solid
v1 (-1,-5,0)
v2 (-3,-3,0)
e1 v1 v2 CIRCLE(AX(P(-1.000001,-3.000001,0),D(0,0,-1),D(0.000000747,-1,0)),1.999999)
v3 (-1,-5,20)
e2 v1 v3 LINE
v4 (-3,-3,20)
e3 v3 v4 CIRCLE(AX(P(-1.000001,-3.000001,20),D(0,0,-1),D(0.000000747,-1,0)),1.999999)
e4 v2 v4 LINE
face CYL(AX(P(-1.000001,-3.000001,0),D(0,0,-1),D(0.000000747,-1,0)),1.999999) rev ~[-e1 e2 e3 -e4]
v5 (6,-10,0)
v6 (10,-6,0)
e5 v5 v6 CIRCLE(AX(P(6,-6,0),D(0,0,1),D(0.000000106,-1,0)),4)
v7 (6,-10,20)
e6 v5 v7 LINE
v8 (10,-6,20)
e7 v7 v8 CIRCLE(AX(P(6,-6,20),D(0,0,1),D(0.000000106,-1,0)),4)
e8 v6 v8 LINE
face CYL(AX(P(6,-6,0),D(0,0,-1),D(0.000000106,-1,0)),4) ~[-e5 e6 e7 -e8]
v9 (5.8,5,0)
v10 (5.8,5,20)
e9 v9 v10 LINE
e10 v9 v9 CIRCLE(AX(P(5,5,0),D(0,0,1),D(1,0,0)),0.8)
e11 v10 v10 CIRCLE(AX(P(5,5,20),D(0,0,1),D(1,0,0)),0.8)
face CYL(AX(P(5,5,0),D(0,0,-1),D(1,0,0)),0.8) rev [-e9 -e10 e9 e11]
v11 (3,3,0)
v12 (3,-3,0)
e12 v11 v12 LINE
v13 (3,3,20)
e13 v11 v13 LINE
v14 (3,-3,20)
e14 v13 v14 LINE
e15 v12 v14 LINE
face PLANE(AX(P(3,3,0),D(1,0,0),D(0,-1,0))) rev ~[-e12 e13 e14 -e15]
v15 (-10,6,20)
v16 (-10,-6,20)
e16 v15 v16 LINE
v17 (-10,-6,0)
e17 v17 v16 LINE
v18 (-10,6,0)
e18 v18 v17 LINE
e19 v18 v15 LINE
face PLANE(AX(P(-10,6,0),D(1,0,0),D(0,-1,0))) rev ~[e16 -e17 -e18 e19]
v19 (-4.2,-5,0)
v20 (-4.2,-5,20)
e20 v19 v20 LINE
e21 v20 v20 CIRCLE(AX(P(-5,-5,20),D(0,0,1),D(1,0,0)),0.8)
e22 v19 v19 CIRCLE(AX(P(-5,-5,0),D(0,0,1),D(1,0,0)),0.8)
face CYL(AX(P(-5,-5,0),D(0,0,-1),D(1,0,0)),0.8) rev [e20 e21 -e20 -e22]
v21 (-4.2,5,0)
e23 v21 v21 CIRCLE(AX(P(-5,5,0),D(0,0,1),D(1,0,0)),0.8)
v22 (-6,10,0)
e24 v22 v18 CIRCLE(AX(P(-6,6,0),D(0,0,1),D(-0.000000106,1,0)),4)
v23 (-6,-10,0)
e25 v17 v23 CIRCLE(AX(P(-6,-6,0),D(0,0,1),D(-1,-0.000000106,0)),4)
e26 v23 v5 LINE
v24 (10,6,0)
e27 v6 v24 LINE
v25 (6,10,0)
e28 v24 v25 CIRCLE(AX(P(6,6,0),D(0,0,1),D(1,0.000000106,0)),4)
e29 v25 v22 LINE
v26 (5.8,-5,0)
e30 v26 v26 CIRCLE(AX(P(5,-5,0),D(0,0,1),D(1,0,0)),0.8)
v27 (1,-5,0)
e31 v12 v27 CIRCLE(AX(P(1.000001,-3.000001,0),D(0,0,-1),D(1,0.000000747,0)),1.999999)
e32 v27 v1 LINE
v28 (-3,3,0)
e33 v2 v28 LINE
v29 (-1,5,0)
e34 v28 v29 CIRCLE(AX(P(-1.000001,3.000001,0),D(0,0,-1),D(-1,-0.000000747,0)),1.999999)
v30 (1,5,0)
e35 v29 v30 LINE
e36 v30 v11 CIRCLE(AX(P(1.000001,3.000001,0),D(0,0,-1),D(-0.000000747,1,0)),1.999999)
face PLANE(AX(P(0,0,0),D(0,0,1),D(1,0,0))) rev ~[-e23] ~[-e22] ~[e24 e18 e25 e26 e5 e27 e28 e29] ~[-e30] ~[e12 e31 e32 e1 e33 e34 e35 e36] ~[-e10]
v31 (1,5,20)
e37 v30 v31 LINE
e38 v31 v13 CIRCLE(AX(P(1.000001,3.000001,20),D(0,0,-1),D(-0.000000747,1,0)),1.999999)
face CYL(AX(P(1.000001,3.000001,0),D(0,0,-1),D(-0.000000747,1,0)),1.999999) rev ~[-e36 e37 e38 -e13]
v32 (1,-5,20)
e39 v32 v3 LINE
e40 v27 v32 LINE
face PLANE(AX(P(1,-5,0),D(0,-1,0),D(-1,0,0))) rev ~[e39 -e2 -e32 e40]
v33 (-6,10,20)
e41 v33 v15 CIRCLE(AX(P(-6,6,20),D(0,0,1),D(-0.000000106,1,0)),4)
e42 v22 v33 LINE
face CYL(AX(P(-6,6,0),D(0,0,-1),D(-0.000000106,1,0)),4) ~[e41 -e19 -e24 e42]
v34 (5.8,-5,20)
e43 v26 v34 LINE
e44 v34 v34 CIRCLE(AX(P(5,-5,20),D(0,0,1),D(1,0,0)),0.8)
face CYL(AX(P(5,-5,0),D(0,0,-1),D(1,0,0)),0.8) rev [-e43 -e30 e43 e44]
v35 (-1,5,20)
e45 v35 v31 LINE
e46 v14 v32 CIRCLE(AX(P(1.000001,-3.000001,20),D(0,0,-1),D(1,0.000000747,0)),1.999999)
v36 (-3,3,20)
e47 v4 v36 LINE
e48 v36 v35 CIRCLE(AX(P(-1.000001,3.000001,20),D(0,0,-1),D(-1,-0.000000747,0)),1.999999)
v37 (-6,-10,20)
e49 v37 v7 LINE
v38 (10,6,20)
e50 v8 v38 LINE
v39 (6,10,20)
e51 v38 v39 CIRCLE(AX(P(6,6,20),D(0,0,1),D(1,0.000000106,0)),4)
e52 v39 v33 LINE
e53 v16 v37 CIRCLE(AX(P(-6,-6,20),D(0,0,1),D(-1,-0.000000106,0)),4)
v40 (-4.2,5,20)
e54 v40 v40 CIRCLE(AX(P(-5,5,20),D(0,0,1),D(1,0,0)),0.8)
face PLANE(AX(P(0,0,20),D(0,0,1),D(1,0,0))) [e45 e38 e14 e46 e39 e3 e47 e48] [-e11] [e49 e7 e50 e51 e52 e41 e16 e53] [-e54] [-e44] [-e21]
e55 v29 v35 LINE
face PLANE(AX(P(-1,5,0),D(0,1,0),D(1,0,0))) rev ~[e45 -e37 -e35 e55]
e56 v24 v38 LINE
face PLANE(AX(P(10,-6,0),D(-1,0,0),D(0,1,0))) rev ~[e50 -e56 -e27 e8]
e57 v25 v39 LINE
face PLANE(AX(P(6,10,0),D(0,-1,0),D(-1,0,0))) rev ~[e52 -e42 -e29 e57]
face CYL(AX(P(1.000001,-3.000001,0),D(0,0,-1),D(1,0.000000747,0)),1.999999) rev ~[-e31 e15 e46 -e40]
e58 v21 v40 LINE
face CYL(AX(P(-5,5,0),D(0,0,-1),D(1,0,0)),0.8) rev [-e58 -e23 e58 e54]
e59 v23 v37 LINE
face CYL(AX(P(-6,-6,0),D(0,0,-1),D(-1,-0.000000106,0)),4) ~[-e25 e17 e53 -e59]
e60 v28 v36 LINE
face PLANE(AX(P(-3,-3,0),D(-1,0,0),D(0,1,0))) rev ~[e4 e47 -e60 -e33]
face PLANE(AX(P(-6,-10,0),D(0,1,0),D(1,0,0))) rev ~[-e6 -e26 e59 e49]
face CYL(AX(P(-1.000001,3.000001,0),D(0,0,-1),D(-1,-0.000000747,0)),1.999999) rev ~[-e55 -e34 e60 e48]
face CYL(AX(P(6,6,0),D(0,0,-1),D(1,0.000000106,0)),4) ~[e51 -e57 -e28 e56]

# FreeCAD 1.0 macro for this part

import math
import FreeCAD as App
import Part
import Sketcher

V = App.Vector

doc = App.newDocument("Part")
params = doc.addObject("Spreadsheet::Sheet", "Params")
for row, (alias, value) in enumerate([
    ("sketch1_radius", "4 mm"),
    ("sketch1_radius2", "1.999999 mm"),
    ("sketch1_diameter", "1.6 mm"),
    ("sketch1_width", "12 mm"),
    ("sketch1_width2", "2 mm"),
    ("pad1_length", "20 mm"),
], start=1):
    params.set(f"A{row}", alias)
    params.set(f"B{row}", "=" + value)
    params.setAlias(f"B{row}", alias)

body = doc.addObject("PartDesign::Body", "Body")

sketch1 = doc.addObject("Sketcher::SketchObject", "Sketch")
body.addObject(sketch1)
sketch1.AttachmentSupport = (doc.XY_Plane, [""])
sketch1.MapMode = "FlatFace"
sketch1.addGeometry(Part.LineSegment(V(6, 10, 0), V(-6, 10, 0)), False)
sketch1.addGeometry(Part.ArcOfCircle(Part.Circle(V(-6, 6, 0), V(0, 0, 1), 4), math.radians(90.000006), math.radians(179.999994)), False)
sketch1.addGeometry(Part.LineSegment(V(-10, 6, 0), V(-10, -6, 0)), False)
sketch1.addGeometry(Part.ArcOfCircle(Part.Circle(V(-6, -6, 0), V(0, 0, 1), 4), math.radians(-179.999994), math.radians(-90.000006)), False)
sketch1.addGeometry(Part.LineSegment(V(-6, -10, 0), V(6, -10, 0)), False)
sketch1.addGeometry(Part.ArcOfCircle(Part.Circle(V(6, -6, 0), V(0, 0, 1), 4), math.radians(-89.999994), math.radians(-0.000006)), False)
sketch1.addGeometry(Part.LineSegment(V(10, -6, 0), V(10, 6, 0)), False)
sketch1.addGeometry(Part.ArcOfCircle(Part.Circle(V(6, 6, 0), V(0, 0, 1), 4), math.radians(0.000006), math.radians(89.999994)), False)
sketch1.addGeometry(Part.Circle(V(-5, -5, 0), V(0, 0, 1), 0.8), False)
sketch1.addGeometry(Part.Circle(V(5, -5, 0), V(0, 0, 1), 0.8), False)
sketch1.addGeometry(Part.LineSegment(V(-3, -3, 0), V(-3, 3, 0)), False)
sketch1.addGeometry(Part.ArcOfCircle(Part.Circle(V(-1.000001, 3.000001, 0), V(0, 0, 1), 1.999999), math.radians(89.999957), math.radians(180.000043)), False)
sketch1.addGeometry(Part.LineSegment(V(-1, 5, 0), V(1, 5, 0)), False)
sketch1.addGeometry(Part.ArcOfCircle(Part.Circle(V(1.000001, 3.000001, 0), V(0, 0, 1), 1.999999), math.radians(-0.000043), math.radians(90.000043)), False)
sketch1.addGeometry(Part.LineSegment(V(3, 3, 0), V(3, -3, 0)), False)
sketch1.addGeometry(Part.ArcOfCircle(Part.Circle(V(1.000001, -3.000001, 0), V(0, 0, 1), 1.999999), math.radians(-90.000043), math.radians(0.000043)), False)
sketch1.addGeometry(Part.LineSegment(V(1, -5, 0), V(-1, -5, 0)), False)
sketch1.addGeometry(Part.ArcOfCircle(Part.Circle(V(-1.000001, -3.000001, 0), V(0, 0, 1), 1.999999), math.radians(179.999957), math.radians(270.000043)), False)
sketch1.addGeometry(Part.Circle(V(-5, 5, 0), V(0, 0, 1), 0.8), False)
sketch1.addGeometry(Part.Circle(V(5, 5, 0), V(0, 0, 1), 0.8), False)
sketch1.addConstraint(Sketcher.Constraint("Tangent", 0, 2, 1, 1))
sketch1.addConstraint(Sketcher.Constraint("Tangent", 1, 2, 2, 1))
sketch1.addConstraint(Sketcher.Constraint("Tangent", 2, 2, 3, 1))
sketch1.addConstraint(Sketcher.Constraint("Tangent", 3, 2, 4, 1))
sketch1.addConstraint(Sketcher.Constraint("Tangent", 4, 2, 5, 1))
sketch1.addConstraint(Sketcher.Constraint("Tangent", 5, 2, 6, 1))
sketch1.addConstraint(Sketcher.Constraint("Tangent", 6, 2, 7, 1))
sketch1.addConstraint(Sketcher.Constraint("Tangent", 7, 2, 0, 1))
sketch1.addConstraint(Sketcher.Constraint("Tangent", 10, 2, 11, 2))
sketch1.addConstraint(Sketcher.Constraint("Tangent", 11, 1, 12, 1))
sketch1.addConstraint(Sketcher.Constraint("Tangent", 12, 2, 13, 2))
sketch1.addConstraint(Sketcher.Constraint("Tangent", 13, 1, 14, 1))
sketch1.addConstraint(Sketcher.Constraint("Tangent", 14, 2, 15, 2))
sketch1.addConstraint(Sketcher.Constraint("Tangent", 15, 1, 16, 1))
sketch1.addConstraint(Sketcher.Constraint("Tangent", 16, 2, 17, 2))
sketch1.addConstraint(Sketcher.Constraint("Tangent", 17, 1, 10, 1))
sketch1.addConstraint(Sketcher.Constraint("Horizontal", 0))
sketch1.addConstraint(Sketcher.Constraint("Vertical", 2))
sketch1.addConstraint(Sketcher.Constraint("Horizontal", 4))
sketch1.addConstraint(Sketcher.Constraint("Vertical", 6))
sketch1.addConstraint(Sketcher.Constraint("Vertical", 10))
sketch1.addConstraint(Sketcher.Constraint("Horizontal", 12))
sketch1.addConstraint(Sketcher.Constraint("Vertical", 14))
sketch1.addConstraint(Sketcher.Constraint("Horizontal", 16))
sketch1.addConstraint(Sketcher.Constraint("Equal", 1, 3))
sketch1.addConstraint(Sketcher.Constraint("Equal", 3, 5))
sketch1.addConstraint(Sketcher.Constraint("Equal", 5, 7))
sketch1.addConstraint(Sketcher.Constraint("Equal", 8, 9))
sketch1.addConstraint(Sketcher.Constraint("Equal", 11, 13))
sketch1.addConstraint(Sketcher.Constraint("Equal", 13, 15))
sketch1.addConstraint(Sketcher.Constraint("Equal", 15, 17))
sketch1.addConstraint(Sketcher.Constraint("Equal", 9, 18))
sketch1.addConstraint(Sketcher.Constraint("Equal", 18, 19))
sketch1.addConstraint(Sketcher.Constraint("Symmetric", 1, 3, 5, 3, -1, 1))
sketch1.addConstraint(Sketcher.Constraint("Symmetric", 11, 3, 15, 3, -1, 1))
sketch1.addConstraint(Sketcher.Constraint("Symmetric", 9, 3, 18, 3, -1, 1))
sketch1.addConstraint(Sketcher.Constraint("Symmetric", 8, 3, 19, 3, -1, 1))
sketch1.addConstraint(Sketcher.Constraint("Symmetric", 8, 3, 9, 3, -2))
sketch1.addConstraint(Sketcher.Constraint("Horizontal", 19, 3, 11, 1))
sketch1.addConstraint(Sketcher.Constraint("Equal", 4, 2))
sketch1.addConstraint(Sketcher.Constraint("Radius", 1, 4.0))
sketch1.addConstraint(Sketcher.Constraint("Radius", 11, 1.999999))
sketch1.addConstraint(Sketcher.Constraint("Diameter", 8, 1.6))
sketch1.addConstraint(Sketcher.Constraint("DistanceX", 0, 2, 0, 1, 12.0))
sketch1.addConstraint(Sketcher.Constraint("DistanceX", 12, 1, 12, 2, 2.0))
sketch1.addConstraint(Sketcher.Constraint("DistanceY", 10, 1, 10, 2, 6.0))
sketch1.addConstraint(Sketcher.Constraint("DistanceX", 8, 3, -1, 1, 5.0))
sketch1.setExpression("Constraints[40]", "Params.sketch1_radius")
sketch1.setExpression("Constraints[41]", "Params.sketch1_radius2")
sketch1.setExpression("Constraints[42]", "Params.sketch1_diameter")
sketch1.setExpression("Constraints[43]", "Params.sketch1_width")
sketch1.setExpression("Constraints[44]", "Params.sketch1_width2")
pad1 = doc.addObject("PartDesign::Pad", "Pad")
body.addObject(pad1)
pad1.Profile = sketch1
pad1.setExpression("Length", "Params.pad1_length")

doc.recompute()
